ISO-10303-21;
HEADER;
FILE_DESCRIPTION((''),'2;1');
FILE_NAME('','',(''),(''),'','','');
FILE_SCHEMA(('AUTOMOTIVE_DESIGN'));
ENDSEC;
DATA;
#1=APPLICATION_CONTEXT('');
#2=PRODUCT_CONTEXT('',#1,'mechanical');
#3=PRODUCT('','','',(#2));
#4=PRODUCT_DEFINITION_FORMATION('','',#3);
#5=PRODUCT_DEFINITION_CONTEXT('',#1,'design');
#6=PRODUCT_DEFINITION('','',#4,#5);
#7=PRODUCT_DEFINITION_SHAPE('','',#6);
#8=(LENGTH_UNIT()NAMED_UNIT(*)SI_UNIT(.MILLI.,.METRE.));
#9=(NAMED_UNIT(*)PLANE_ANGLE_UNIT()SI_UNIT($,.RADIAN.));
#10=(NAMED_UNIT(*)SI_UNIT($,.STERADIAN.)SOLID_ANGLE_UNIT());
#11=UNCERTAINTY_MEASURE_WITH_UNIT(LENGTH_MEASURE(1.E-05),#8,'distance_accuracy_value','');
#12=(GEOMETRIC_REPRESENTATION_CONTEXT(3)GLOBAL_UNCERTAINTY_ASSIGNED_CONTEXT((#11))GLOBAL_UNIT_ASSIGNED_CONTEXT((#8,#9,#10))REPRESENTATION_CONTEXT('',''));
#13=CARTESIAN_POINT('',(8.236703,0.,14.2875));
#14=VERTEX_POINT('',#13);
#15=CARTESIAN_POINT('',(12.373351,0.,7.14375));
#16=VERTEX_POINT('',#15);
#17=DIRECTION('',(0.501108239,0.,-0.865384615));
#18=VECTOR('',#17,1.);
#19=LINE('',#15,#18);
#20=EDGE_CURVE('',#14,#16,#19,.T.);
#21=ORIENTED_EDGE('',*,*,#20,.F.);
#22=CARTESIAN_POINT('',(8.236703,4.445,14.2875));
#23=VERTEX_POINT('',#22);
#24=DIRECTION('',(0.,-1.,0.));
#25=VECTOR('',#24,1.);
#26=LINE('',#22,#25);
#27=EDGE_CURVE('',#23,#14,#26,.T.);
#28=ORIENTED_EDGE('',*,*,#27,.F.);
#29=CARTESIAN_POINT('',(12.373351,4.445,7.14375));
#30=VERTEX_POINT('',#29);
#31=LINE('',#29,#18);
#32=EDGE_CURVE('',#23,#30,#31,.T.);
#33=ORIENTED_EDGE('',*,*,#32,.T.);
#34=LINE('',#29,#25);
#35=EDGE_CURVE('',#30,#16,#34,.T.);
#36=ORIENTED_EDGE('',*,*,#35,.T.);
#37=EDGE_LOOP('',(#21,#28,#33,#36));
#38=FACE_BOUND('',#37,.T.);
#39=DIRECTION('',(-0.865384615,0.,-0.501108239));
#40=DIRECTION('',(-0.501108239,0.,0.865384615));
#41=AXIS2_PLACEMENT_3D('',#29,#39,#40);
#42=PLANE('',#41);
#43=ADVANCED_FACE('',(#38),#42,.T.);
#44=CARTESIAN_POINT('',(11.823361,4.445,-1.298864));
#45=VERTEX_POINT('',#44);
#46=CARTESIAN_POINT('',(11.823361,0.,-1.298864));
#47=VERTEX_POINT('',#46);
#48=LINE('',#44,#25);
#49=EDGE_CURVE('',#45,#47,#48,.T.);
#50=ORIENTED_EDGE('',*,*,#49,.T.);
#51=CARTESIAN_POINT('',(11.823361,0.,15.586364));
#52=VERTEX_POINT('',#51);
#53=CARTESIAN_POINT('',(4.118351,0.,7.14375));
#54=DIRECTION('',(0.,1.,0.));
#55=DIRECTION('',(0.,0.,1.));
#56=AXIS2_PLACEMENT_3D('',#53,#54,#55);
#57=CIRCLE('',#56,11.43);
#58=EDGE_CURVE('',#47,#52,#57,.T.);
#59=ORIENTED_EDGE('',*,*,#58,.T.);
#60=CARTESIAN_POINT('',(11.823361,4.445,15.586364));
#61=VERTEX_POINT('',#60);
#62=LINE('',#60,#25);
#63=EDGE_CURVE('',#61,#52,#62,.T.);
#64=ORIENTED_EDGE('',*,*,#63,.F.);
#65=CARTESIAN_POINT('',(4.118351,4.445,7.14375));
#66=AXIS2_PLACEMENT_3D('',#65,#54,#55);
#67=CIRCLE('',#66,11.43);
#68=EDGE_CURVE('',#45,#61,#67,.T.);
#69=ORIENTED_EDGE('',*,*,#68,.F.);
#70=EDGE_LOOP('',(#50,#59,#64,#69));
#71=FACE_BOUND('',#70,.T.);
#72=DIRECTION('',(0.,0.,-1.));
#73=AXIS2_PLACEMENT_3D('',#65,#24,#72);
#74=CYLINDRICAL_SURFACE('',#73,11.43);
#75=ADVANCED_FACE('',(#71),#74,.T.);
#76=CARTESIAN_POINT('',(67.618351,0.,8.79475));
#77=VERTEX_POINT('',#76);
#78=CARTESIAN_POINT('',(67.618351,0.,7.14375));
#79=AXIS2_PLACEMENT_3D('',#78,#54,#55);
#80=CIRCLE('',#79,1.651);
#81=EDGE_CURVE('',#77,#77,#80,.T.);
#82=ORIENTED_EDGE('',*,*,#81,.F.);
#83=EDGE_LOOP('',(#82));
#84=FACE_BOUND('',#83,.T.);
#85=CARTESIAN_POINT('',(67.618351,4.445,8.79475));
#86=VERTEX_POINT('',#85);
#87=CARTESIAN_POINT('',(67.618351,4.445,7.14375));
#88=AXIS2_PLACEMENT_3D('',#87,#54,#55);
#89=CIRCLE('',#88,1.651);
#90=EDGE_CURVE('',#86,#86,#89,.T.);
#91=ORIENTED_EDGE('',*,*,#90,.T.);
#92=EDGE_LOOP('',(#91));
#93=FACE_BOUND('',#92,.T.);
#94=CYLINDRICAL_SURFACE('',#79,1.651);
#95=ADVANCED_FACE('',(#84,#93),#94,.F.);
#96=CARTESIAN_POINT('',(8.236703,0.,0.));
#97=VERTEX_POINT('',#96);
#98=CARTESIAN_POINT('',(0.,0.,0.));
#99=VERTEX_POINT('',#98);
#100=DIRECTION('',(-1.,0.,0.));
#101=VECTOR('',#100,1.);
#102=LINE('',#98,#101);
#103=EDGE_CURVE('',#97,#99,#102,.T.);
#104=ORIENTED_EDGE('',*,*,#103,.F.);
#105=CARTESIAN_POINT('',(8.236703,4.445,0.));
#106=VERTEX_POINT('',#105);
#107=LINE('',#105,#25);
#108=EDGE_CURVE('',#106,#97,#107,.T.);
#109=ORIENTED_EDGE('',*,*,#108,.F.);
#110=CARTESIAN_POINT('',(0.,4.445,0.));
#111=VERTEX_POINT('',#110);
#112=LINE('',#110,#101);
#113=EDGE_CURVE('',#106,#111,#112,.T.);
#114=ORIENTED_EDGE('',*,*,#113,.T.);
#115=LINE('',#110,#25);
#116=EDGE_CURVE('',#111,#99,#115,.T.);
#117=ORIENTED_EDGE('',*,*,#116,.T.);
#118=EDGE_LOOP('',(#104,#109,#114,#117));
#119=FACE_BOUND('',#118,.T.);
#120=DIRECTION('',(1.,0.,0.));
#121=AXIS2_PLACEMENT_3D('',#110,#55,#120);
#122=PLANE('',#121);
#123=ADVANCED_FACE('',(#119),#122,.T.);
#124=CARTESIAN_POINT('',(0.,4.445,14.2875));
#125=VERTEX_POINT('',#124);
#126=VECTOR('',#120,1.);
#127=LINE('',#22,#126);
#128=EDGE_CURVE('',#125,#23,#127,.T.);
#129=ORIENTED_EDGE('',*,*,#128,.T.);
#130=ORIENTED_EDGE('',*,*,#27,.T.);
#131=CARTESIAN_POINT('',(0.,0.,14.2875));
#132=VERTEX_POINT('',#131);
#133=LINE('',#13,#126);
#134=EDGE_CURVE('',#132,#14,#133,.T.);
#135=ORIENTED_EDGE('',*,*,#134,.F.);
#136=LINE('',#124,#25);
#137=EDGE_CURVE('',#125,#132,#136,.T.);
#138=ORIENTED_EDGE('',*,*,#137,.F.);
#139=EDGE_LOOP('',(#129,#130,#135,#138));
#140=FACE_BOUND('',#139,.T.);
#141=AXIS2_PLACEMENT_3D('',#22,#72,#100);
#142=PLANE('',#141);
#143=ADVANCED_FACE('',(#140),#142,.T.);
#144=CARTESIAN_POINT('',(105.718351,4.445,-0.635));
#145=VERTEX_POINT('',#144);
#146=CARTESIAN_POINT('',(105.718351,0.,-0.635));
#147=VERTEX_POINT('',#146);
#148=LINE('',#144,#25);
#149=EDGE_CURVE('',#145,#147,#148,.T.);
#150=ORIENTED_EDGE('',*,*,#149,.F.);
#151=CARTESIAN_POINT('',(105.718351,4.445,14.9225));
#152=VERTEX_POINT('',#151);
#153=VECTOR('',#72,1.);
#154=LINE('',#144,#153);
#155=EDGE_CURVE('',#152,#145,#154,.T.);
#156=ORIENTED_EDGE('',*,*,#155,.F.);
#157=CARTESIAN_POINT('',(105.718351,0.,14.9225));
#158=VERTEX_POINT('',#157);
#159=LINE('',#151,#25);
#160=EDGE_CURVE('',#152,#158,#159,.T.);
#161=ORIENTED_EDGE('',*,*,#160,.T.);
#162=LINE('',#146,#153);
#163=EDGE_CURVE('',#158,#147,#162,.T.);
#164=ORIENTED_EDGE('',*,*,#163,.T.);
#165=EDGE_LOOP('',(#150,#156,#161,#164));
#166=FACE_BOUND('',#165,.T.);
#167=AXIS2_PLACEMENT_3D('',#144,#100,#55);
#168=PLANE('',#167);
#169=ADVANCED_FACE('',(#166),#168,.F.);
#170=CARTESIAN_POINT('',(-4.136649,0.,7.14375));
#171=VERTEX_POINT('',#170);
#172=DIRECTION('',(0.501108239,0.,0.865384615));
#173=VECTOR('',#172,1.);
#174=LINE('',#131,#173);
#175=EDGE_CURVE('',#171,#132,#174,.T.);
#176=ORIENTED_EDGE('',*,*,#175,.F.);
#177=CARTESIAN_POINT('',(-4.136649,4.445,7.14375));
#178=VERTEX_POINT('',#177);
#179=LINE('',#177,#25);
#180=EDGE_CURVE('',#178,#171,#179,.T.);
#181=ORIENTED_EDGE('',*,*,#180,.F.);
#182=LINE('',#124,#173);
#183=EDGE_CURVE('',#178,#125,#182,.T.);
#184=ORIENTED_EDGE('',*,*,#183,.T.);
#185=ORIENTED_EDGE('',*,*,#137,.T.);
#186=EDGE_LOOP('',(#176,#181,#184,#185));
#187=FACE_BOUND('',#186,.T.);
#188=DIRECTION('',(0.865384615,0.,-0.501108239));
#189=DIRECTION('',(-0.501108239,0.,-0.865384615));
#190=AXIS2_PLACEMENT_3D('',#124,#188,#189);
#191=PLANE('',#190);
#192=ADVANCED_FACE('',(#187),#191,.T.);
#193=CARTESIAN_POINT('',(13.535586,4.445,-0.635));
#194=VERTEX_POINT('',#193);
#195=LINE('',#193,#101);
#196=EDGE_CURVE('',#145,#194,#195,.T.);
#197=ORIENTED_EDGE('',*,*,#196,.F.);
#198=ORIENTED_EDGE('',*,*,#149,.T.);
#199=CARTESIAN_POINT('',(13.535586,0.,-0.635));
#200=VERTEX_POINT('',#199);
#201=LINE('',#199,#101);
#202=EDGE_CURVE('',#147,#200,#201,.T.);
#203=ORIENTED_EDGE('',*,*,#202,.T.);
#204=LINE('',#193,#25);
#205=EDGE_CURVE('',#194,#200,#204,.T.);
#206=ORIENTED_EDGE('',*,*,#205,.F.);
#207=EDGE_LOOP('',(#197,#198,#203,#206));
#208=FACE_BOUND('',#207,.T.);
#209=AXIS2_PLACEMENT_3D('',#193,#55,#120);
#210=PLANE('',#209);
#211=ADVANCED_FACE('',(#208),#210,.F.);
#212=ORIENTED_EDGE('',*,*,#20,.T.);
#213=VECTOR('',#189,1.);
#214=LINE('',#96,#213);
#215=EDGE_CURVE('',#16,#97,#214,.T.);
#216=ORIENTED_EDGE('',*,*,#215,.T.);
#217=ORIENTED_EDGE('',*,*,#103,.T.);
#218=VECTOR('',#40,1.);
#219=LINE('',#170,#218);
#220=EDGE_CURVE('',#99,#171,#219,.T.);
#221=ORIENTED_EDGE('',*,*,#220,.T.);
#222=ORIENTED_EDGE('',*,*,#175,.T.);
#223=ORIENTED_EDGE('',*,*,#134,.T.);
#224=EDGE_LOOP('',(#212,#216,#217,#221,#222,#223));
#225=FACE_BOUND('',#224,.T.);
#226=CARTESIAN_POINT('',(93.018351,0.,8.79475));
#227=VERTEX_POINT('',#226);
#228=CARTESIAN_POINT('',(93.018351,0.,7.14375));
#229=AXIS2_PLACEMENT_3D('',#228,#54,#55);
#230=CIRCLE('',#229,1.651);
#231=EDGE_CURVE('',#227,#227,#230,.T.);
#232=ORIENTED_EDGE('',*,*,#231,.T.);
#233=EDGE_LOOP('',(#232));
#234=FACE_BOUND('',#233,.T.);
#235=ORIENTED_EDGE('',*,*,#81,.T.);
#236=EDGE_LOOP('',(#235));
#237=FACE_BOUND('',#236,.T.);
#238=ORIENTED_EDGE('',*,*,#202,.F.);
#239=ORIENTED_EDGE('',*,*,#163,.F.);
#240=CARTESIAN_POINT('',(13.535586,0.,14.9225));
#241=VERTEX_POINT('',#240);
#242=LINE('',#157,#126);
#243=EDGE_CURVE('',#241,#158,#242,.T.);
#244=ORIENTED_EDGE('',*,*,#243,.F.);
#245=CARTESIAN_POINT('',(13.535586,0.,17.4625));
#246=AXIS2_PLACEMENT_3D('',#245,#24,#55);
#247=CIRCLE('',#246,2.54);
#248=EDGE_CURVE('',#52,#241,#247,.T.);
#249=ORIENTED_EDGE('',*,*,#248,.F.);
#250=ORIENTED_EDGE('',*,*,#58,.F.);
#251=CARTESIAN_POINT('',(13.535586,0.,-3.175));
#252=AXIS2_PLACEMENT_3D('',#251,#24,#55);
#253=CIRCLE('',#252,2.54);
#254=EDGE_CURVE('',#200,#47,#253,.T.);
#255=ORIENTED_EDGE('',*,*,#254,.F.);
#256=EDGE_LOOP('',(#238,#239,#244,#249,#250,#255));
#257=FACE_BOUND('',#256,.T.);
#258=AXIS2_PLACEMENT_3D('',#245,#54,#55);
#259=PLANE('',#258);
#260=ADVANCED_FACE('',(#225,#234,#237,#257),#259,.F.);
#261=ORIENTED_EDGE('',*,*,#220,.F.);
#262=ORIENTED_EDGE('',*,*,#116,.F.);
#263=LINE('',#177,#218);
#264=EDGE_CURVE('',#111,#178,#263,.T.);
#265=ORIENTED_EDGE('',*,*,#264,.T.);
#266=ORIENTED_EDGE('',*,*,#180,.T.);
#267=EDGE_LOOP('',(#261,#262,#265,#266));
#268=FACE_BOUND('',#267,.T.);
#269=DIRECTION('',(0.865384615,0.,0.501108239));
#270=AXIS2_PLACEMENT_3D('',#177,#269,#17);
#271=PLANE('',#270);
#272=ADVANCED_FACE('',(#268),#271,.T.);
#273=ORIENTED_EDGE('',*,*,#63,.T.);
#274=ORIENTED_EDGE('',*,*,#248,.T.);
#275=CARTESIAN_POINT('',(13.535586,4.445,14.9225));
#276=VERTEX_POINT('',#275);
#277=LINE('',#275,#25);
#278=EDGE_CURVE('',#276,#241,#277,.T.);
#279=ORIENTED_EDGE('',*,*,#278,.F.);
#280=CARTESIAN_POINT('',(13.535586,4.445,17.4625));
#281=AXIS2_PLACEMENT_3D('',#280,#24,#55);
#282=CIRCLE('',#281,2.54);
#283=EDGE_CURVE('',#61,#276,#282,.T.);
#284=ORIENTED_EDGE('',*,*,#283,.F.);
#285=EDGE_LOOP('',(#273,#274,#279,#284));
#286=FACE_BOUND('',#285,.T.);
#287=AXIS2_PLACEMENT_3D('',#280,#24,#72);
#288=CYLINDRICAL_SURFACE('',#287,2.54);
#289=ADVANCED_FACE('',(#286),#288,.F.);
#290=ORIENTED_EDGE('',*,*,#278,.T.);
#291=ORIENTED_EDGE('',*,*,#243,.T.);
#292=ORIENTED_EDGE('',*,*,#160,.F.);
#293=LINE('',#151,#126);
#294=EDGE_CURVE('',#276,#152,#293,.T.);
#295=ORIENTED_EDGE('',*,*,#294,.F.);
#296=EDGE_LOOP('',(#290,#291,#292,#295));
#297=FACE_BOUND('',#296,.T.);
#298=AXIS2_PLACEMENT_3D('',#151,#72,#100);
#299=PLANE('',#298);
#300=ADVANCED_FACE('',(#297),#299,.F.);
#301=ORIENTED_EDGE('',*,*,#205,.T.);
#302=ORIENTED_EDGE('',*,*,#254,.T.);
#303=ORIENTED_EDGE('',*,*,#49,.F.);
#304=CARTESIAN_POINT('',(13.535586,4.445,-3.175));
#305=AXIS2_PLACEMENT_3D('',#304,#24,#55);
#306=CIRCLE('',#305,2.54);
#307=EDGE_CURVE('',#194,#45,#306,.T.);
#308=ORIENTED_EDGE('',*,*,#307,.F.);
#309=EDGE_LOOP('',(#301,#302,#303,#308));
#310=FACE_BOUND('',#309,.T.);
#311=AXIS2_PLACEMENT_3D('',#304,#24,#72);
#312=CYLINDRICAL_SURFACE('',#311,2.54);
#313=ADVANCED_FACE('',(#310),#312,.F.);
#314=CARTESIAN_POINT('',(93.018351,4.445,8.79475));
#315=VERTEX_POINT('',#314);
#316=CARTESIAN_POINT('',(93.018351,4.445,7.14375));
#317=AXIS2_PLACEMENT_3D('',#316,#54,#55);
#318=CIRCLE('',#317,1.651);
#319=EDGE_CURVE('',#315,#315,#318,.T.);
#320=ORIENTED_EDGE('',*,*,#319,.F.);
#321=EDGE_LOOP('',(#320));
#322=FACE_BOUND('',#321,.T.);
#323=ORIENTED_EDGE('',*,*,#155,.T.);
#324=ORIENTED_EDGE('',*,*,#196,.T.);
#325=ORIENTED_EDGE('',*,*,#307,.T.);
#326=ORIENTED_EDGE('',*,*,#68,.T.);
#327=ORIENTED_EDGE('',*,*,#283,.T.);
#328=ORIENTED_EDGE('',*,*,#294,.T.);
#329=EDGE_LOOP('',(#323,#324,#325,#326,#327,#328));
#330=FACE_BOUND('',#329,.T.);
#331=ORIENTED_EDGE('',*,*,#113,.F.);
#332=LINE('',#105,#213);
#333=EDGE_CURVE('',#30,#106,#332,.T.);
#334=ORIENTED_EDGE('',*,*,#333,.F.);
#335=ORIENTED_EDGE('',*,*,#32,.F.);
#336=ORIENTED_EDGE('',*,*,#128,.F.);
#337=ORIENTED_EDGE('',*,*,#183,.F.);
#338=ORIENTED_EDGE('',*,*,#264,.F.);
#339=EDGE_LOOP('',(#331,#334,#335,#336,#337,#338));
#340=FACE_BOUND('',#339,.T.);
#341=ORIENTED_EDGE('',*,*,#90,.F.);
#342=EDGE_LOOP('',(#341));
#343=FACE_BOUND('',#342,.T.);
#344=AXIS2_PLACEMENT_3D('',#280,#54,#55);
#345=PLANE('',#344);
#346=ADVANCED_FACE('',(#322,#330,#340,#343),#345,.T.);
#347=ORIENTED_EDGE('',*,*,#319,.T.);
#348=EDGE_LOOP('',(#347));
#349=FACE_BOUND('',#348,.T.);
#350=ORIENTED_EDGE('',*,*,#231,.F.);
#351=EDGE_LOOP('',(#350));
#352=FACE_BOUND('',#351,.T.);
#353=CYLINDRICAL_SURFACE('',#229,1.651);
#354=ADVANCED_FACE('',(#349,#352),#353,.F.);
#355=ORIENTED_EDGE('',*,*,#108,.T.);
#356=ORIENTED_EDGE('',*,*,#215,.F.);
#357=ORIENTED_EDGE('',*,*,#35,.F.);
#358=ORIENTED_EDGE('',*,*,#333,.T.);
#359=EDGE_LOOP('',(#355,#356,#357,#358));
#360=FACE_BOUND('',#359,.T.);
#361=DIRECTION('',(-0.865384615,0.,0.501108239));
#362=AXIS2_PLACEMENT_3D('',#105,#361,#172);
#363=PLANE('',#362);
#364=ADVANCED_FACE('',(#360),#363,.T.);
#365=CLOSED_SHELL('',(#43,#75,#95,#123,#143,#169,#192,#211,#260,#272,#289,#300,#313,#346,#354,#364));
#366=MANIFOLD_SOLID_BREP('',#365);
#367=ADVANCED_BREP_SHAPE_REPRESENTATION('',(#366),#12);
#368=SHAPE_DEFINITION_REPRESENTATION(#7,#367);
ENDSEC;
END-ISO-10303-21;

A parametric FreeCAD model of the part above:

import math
import FreeCAD as App
import Part
import Sketcher

V = App.Vector
Q = App.Units.Quantity

doc = App.newDocument("Part")
body = doc.addObject("PartDesign::Body", "Body")

# Sketch on XZ plane
sketch1 = body.newObject("Sketcher::SketchObject", "Sketch")
sketch1.AttachmentSupport = (doc.getObject("XZ_Plane"), [""])
sketch1.MapMode = "FlatFace"
sketch1.addGeometry([
    Part.LineSegment(V(105.7, -0.6, 0), V(13.5, -0.6, 0)),  # 0
    Part.ArcOfCircle(Part.Circle(V(13.5, -3.2, 0), V(0, 0, 1), 2.5), math.radians(90), math.radians(132)),  # 1
    Part.ArcOfCircle(Part.Circle(V(4.1, 7.1, 0), V(0, 0, 1), 11.4), math.radians(48), math.radians(312)),  # 2
    Part.ArcOfCircle(Part.Circle(V(13.5, 17.5, 0), V(0, 0, 1), 2.5), math.radians(-132), math.radians(-90)),  # 3
    Part.LineSegment(V(13.5, 14.9, 0), V(105.7, 14.9, 0)),  # 4
    Part.LineSegment(V(105.7, 14.9, 0), V(105.7, -0.6, 0)),  # 5
    Part.LineSegment(V(0, 0, 0), V(8.2, 0, 0)),  # 6
    Part.LineSegment(V(8.2, 0, 0), V(12.4, 7.1, 0)),  # 7
    Part.LineSegment(V(12.4, 7.1, 0), V(8.2, 14.3, 0)),  # 8
    Part.LineSegment(V(8.2, 14.3, 0), V(0, 14.3, 0)),  # 9
    Part.LineSegment(V(0, 14.3, 0), V(-4.1, 7.1, 0)),  # 10
    Part.LineSegment(V(-4.1, 7.1, 0), V(0, 0, 0)),  # 11
], False)
sketch1.addConstraint([
    Sketcher.Constraint("Tangent", 0, 2, 1, 1),
    Sketcher.Constraint("Tangent", 1, 2, 2, 2),
    Sketcher.Constraint("Tangent", 2, 1, 3, 1),
    Sketcher.Constraint("Tangent", 3, 2, 4, 1),
    Sketcher.Constraint("Coincident", 4, 2, 5, 1),
    Sketcher.Constraint("Coincident", 5, 2, 0, 1),
    Sketcher.Constraint("Coincident", 6, 2, 7, 1),
    Sketcher.Constraint("Coincident", 7, 2, 8, 1),
    Sketcher.Constraint("Coincident", 8, 2, 9, 1),
    Sketcher.Constraint("Coincident", 9, 2, 10, 1),
    Sketcher.Constraint("Coincident", 10, 2, 11, 1),
    Sketcher.Constraint("Coincident", 11, 2, 6, 1),
    Sketcher.Constraint("Horizontal", 0),
    Sketcher.Constraint("Horizontal", 4),
    Sketcher.Constraint("Vertical", 5),
    Sketcher.Constraint("Horizontal", 6),
    Sketcher.Constraint("Horizontal", 9),
    Sketcher.Constraint("Coincident", 11, 2, -1, 1),
    Sketcher.Constraint("Equal", 1, 3),
    Sketcher.Constraint("PointOnObject", 9, 2, -2),
    Sketcher.Constraint("Parallel", 7, 10),
    Sketcher.Constraint("Parallel", 8, 11),
    Sketcher.Constraint("Horizontal", 2, 3, 7, 2),
    Sketcher.Constraint("Horizontal", 7, 2, 10, 2),
    Sketcher.Constraint("Vertical", 1, 3, 3, 3),
    Sketcher.Constraint("Vertical", 6, 2, 8, 2),
    Sketcher.Constraint("Radius", 1, Q("0.1 in")),
    Sketcher.Constraint("Radius", 2, Q("0.45 in")),
    Sketcher.Constraint("DistanceX", 10, 2, 7, 2, Q("0.65 in")),
    Sketcher.Constraint("Distance", 7, Q("0.325 in")),
    Sketcher.Constraint("DistanceY", 5, 2, 5, 1, Q("0.6125 in")),
    Sketcher.Constraint("DistanceY", 1, 3, -1, 1, Q("0.125 in")),
    Sketcher.Constraint("DistanceX", 2, 3, 7, 2, Q("0.325 in")),
    Sketcher.Constraint("DistanceX", 0, 2, 0, 1, Q("92.182766 mm")),
])
pad1 = body.newObject("PartDesign::Pad", "Pad")
pad1.Profile = sketch1
pad1.Length = Q("0.175 in")
pad1.Reversed = True

# Sketch on XZ plane
sketch2 = body.newObject("Sketcher::SketchObject", "Sketch001")
sketch2.AttachmentSupport = (doc.getObject("XZ_Plane"), [""])
sketch2.MapMode = "FlatFace"
sketch2.AttachmentOffset = App.Placement(V(0, 0, -0.175 * 25.4), App.Rotation())
sketch2.addGeometry([
    Part.Circle(V(93, 7.1, 0), V(0, 0, 1), 1.7),
    Part.Circle(V(67.6, 7.1, 0), V(0, 0, 1), 1.7),
], False)
sketch2.addConstraint([
    Sketcher.Constraint("Equal", 0, 1),
    Sketcher.Constraint("Horizontal", 0, 3, 1, 3),
    Sketcher.Constraint("Diameter", 0, Q("0.13 in")),
    Sketcher.Constraint("DistanceX", 1, 3, 0, 3, Q("1 in")),
    Sketcher.Constraint("DistanceY", -1, 1, 0, 3, Q("0.28125 in")),
    Sketcher.Constraint("DistanceX", -1, 1, 0, 3, Q("93.018351 mm")),
])
pocket1 = body.newObject("PartDesign::Pocket", "Pocket")
pocket1.Profile = sketch2
pocket1.Type = "ThroughAll"
pocket1.Reversed = True

doc.recompute()
